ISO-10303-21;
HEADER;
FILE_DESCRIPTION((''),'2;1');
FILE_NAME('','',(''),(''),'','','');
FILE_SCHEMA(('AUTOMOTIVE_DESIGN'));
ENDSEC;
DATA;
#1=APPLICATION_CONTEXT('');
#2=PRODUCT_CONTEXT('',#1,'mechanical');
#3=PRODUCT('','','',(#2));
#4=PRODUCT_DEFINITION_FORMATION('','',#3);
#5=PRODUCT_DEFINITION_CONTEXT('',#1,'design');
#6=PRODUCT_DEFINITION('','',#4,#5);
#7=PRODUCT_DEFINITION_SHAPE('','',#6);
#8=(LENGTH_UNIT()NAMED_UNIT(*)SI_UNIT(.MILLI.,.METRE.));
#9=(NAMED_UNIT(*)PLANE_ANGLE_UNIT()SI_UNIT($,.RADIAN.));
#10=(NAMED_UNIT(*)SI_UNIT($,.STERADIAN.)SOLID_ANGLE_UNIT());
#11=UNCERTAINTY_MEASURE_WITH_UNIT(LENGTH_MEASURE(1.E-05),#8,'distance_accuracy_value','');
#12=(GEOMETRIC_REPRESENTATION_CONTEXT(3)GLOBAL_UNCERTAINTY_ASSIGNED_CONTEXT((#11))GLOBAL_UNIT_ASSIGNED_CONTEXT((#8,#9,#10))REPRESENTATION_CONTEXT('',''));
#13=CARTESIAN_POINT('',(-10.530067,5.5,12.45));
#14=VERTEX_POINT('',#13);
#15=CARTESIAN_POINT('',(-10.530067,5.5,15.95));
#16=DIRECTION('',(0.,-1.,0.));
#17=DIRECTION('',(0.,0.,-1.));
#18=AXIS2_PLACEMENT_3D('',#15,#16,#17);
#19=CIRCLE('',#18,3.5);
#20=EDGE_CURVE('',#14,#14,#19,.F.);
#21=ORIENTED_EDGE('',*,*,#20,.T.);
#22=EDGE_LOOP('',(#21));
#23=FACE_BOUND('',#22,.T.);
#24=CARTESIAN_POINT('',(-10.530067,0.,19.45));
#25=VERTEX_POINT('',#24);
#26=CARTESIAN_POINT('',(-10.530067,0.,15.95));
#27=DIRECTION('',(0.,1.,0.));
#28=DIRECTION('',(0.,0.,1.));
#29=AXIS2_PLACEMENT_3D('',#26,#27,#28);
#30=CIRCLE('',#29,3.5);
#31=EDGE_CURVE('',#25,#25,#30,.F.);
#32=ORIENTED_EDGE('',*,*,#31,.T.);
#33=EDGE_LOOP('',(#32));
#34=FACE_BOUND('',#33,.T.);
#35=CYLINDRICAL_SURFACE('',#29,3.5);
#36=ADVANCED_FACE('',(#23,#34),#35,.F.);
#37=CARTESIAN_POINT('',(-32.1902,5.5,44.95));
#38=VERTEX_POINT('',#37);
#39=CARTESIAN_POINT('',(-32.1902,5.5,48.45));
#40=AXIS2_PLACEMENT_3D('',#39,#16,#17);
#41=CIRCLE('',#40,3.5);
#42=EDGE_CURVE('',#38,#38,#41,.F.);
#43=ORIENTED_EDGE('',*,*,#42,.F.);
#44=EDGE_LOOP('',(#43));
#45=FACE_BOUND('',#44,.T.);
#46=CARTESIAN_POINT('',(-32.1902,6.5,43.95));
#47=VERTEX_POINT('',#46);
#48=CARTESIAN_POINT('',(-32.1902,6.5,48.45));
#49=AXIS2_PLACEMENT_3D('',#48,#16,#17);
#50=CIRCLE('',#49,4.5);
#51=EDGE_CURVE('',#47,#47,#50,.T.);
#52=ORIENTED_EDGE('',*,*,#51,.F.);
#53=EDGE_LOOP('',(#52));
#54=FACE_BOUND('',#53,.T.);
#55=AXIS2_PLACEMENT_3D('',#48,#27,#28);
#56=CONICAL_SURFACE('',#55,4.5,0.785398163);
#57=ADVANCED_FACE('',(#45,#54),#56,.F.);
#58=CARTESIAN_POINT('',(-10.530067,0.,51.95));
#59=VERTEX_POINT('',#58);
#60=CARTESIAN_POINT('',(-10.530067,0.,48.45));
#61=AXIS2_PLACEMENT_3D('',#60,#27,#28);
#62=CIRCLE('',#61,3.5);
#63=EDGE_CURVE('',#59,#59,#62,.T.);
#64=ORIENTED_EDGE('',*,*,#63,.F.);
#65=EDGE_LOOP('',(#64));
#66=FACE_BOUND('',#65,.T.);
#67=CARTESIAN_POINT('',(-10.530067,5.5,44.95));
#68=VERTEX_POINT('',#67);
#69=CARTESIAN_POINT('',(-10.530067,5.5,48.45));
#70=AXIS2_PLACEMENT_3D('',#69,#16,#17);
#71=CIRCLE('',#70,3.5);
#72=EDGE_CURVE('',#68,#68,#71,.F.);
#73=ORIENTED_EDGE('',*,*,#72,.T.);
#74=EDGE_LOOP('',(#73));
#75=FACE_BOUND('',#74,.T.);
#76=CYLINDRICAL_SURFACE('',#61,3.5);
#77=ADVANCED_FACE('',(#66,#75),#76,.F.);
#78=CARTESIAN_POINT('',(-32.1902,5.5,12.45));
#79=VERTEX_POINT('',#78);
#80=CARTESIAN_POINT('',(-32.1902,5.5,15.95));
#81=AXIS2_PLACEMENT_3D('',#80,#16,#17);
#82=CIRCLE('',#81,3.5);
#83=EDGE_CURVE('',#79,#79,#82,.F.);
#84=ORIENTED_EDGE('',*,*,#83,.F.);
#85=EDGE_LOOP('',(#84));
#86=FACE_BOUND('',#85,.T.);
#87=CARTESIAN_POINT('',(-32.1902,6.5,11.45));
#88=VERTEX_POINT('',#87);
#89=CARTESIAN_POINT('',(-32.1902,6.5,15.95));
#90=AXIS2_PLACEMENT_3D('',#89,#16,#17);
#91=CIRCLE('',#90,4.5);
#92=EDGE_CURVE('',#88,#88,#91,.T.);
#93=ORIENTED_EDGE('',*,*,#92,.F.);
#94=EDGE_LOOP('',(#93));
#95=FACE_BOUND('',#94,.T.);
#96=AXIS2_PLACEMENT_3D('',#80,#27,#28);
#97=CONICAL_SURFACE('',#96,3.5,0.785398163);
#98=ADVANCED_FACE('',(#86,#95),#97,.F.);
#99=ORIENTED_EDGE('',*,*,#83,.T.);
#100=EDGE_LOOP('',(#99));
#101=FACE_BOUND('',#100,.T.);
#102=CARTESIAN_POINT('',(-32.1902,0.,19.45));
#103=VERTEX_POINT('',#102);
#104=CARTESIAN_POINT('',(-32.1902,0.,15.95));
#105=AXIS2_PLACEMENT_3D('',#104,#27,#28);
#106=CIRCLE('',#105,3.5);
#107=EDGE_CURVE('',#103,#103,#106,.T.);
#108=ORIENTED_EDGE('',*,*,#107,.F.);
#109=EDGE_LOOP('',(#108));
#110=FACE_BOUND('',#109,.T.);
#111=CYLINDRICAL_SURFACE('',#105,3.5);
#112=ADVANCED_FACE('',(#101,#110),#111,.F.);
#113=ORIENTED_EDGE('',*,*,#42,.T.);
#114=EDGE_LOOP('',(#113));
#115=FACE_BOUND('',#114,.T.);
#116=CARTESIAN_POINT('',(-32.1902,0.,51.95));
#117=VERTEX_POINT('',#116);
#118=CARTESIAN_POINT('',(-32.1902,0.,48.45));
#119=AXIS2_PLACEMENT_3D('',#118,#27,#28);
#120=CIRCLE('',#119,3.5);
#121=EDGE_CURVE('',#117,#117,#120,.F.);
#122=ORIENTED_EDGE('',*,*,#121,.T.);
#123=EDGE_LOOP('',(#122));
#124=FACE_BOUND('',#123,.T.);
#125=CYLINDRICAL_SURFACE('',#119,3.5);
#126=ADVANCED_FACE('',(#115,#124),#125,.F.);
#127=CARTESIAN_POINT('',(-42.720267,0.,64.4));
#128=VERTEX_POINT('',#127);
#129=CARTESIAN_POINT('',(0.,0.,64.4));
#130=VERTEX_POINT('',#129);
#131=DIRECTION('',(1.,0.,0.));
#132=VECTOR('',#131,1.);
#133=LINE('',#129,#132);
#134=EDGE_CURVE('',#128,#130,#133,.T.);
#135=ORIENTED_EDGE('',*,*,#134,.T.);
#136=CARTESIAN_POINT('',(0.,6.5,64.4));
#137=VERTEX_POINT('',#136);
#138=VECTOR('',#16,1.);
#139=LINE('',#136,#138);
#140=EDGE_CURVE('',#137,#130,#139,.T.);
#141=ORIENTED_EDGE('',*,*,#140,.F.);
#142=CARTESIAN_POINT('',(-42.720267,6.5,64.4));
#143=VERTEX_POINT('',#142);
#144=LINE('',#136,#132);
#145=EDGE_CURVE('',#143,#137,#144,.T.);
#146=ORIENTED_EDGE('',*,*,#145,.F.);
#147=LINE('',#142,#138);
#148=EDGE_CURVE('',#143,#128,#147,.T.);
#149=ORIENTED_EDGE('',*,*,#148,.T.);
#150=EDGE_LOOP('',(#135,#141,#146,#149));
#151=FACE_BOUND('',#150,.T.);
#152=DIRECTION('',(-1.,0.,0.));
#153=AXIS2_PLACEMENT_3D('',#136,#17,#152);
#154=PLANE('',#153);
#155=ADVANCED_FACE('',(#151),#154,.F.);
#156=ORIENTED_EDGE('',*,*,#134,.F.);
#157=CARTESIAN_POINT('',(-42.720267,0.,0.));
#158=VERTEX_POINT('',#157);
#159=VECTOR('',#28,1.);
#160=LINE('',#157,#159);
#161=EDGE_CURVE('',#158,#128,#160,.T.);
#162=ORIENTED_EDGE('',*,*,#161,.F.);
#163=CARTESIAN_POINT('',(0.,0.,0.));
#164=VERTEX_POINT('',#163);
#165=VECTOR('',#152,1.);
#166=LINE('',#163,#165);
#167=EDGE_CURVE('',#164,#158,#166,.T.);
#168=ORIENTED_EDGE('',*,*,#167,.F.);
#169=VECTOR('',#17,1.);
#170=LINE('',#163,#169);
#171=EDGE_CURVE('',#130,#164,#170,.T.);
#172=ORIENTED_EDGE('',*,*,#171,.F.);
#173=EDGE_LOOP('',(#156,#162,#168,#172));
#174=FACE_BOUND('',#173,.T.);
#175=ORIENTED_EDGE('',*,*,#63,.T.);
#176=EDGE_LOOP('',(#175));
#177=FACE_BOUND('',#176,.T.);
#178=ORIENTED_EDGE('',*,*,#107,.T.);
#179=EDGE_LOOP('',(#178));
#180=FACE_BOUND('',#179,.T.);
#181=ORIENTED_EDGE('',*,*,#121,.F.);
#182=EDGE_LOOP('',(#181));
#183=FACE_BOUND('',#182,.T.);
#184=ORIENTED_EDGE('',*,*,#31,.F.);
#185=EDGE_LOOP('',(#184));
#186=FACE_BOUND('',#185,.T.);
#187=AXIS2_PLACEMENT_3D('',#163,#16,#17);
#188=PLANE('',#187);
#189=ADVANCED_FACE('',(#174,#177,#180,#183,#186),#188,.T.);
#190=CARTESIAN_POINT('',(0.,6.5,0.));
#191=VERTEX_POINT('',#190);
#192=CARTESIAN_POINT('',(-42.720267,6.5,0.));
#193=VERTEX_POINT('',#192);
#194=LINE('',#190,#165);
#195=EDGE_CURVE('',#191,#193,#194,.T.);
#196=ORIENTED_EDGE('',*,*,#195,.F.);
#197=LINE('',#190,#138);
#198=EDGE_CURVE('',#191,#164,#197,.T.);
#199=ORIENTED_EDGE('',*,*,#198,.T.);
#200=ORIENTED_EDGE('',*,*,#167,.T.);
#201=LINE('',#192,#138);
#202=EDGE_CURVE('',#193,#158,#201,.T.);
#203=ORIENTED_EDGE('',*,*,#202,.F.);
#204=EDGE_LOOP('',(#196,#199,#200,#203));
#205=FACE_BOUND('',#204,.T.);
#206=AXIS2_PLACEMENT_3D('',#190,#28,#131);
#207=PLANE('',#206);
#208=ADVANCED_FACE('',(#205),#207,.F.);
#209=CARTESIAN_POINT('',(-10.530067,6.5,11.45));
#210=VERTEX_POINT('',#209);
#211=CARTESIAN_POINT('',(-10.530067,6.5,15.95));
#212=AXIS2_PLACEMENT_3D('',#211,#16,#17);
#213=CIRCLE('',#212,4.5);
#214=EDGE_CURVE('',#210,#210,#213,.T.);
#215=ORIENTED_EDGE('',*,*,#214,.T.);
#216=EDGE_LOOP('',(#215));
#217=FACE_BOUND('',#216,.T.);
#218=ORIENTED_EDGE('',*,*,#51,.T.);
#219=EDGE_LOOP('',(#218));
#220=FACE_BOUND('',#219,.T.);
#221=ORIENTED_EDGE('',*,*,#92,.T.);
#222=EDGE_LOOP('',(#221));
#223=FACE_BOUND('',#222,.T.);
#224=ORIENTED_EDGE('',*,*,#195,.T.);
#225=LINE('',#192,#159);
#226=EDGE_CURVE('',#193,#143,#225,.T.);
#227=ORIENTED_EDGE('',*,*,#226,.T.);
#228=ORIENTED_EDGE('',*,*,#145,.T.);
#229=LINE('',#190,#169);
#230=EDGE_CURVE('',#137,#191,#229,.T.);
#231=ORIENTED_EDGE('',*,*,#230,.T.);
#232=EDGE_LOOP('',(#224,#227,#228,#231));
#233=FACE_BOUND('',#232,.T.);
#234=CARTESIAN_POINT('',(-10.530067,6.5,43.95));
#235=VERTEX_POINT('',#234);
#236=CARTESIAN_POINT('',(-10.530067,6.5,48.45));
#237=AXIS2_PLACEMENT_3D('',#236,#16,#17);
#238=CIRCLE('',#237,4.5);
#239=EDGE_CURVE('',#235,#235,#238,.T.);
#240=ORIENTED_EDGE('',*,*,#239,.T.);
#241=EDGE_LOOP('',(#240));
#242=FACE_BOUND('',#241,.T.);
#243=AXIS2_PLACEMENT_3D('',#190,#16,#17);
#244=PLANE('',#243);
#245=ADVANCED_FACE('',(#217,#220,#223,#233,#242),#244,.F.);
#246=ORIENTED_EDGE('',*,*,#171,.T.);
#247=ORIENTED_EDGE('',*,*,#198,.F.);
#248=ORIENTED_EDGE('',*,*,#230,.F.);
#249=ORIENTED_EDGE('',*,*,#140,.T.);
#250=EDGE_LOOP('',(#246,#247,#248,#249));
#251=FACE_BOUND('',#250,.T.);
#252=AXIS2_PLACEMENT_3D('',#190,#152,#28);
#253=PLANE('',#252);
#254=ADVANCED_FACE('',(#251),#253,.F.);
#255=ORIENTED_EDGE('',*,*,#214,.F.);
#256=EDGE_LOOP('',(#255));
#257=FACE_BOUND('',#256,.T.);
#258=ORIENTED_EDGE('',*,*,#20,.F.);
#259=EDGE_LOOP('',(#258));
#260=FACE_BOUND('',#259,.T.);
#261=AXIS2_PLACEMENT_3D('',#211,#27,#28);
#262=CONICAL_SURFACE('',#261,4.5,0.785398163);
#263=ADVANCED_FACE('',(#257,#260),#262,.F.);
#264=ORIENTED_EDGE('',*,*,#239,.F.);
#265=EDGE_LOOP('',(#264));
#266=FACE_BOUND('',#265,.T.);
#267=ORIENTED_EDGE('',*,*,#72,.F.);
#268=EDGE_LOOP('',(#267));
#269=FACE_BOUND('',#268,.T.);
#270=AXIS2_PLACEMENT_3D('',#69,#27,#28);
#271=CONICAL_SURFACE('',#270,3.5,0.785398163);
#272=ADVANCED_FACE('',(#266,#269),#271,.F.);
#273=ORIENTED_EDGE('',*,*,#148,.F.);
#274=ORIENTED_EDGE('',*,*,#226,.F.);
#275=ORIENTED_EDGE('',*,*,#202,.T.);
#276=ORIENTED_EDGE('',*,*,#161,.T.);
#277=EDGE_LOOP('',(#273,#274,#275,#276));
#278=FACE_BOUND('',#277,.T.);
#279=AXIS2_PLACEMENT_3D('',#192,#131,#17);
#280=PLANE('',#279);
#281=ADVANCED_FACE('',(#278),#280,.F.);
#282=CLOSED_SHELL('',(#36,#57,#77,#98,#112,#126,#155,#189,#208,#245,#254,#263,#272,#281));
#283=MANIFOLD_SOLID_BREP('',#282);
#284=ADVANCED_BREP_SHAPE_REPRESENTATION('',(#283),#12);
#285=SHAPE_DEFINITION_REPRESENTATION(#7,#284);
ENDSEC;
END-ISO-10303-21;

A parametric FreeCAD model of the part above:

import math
import FreeCAD as App
import Part
import Sketcher
from FreeCAD import Vector


def edges_at(feature, points):
    """Names of the edges that pass closest to the given points."""
    edges = feature.Shape.Edges
    near = lambda p: min(range(len(edges)), key=lambda i: edges[i].distToShape(Part.Vertex(*p))[0])
    return sorted({f"Edge{near(p) + 1}" for p in points})


def add_polygon(sketch, points):
    """Adds a closed chain of lines whose ends are joined by coincident constraints."""
    first, n = sketch.GeometryCount, len(points)
    for a, b in zip(points, points[1:] + points[:1]):
        sketch.addGeometry(Part.LineSegment(App.Vector(*a, 0), App.Vector(*b, 0)), False)
    for i in range(n):
        sketch.addConstraint(Sketcher.Constraint("Coincident", first + i, 2, first + (i + 1) % n, 1))

doc = App.newDocument("Part")
body = doc.addObject("PartDesign::Body", "Body")

sketch1 = body.newObject("Sketcher::SketchObject", "Sketch")
sketch1.AttachmentSupport = (doc.getObject("XZ_Plane"), [""])
sketch1.MapMode = "FlatFace"
add_polygon(sketch1, [(-43, 0), (-43, 64), (0, 64), (0, 0)])
sketch1.addConstraint([
    Sketcher.Constraint("Vertical", 0),
    Sketcher.Constraint("Horizontal", 1),
    Sketcher.Constraint("Vertical", 2),
    Sketcher.Constraint("Horizontal", 3),
    Sketcher.Constraint("Coincident", 2, 2, -1, 1),
    Sketcher.Constraint("DistanceY", 0, 1, 0, 2, 64.4),
    Sketcher.Constraint("DistanceX", 1, 1, 1, 2, 42.720267),
])
pad1 = body.newObject("PartDesign::Pad", "Pad")
pad1.Profile = sketch1
pad1.Length = 6.5
pad1.Reversed = True

sketch2 = body.newObject("Sketcher::SketchObject", "Sketch001")
sketch2.AttachmentSupport = (doc.getObject("XZ_Plane"), [""])
sketch2.MapMode = "FlatFace"
sketch2.AttachmentOffset = App.Placement(Vector(0, 0, -6.5), App.Rotation())
sketch2.addGeometry([
    Part.Circle(Vector(-32.2, 15.9, 0), Vector(0, 0, 1), 3.5),
    Part.ArcOfCircle(Part.Circle(Vector(-10.5, 16, 0), Vector(0, 0, 1), 3.5), math.radians(-180), math.radians(-90)),
    Part.ArcOfCircle(Part.Circle(Vector(-10.5, 15.9, 0), Vector(0, 0, 1), 3.5), math.radians(90), math.radians(180)),
    Part.ArcOfCircle(Part.Circle(Vector(-10.5, 15.9, 0), Vector(0, 0, 1), 3.5), math.radians(0), math.radians(90)),
    Part.ArcOfCircle(Part.Circle(Vector(-10.5, 16, 0), Vector(0, 0, 1), 3.5), math.radians(-90), math.radians(0)),
    Part.Circle(Vector(-32.2, 48.5, 0), Vector(0, 0, 1), 3.5),
    Part.ArcOfCircle(Part.Circle(Vector(-10.5, 48.5, 0), Vector(0, 0, 1), 3.5), math.radians(-90), math.radians(0)),
    Part.ArcOfCircle(Part.Circle(Vector(-10.5, 48.5, 0), Vector(0, 0, 1), 3.5), math.radians(90), math.radians(270)),
    Part.ArcOfCircle(Part.Circle(Vector(-10.5, 48.4, 0), Vector(0, 0, 1), 3.5), math.radians(0), math.radians(90)),
], False)
sketch2.addConstraint([
    Sketcher.Constraint("Tangent", 1, 1, 2, 2),
    Sketcher.Constraint("Tangent", 2, 1, 3, 2),
    Sketcher.Constraint("Tangent", 3, 1, 4, 2),
    Sketcher.Constraint("Tangent", 4, 1, 1, 2),
    Sketcher.Constraint("Tangent", 6, 1, 7, 2),
    Sketcher.Constraint("Tangent", 7, 1, 8, 2),
    Sketcher.Constraint("Tangent", 8, 1, 6, 2),
    Sketcher.Constraint("Equal", 0, 1),
    Sketcher.Constraint("Equal", 1, 2),
    Sketcher.Constraint("Equal", 4, 5),
    Sketcher.Constraint("Equal", 5, 6),
    Sketcher.Constraint("Horizontal", 0, 3, 1, 3),
    Sketcher.Constraint("Horizontal", 5, 3, 6, 3),
    Sketcher.Constraint("Horizontal", 4, 3, 1, 1),
    Sketcher.Constraint("Horizontal", 1, 1, 3, 1),
    Sketcher.Constraint("Horizontal", 7, 3, 8, 1),
    Sketcher.Constraint("Vertical", 0, 3, 5, 3),
    Sketcher.Constraint("Vertical", 4, 3, 6, 3),
    Sketcher.Constraint("Vertical", 8, 3, 2, 1),
    Sketcher.Constraint("Vertical", 2, 1, 4, 1),
    Sketcher.Constraint("Vertical", 4, 1, 6, 1),
    Sketcher.Constraint("Vertical", 6, 1, 7, 1),
    Sketcher.Constraint("Diameter", 0, 7.0),
    Sketcher.Constraint("DistanceY", 0, 3, 5, 3, 32.5),
    Sketcher.Constraint("DistanceY", -1, 1, 0, 3, 15.95),
    Sketcher.Constraint("DistanceX", 0, 3, -1, 1, 32.1902),
    Sketcher.Constraint("DistanceX", 1, 3, -1, 1, 10.530067),
])
pocket1 = body.newObject("PartDesign::Pocket", "Pocket")
pocket1.Profile = sketch2
pocket1.Type = "ThroughAll"
pocket1.Reversed = True
doc.recompute()

chamfer = body.newObject("PartDesign::Chamfer", "Chamfer")
chamfer.Base = (pocket1, edges_at(pocket1, [
    (-8.055, 6.5, 45.975),
    (-35.69, 6.5, 48.45),
    (-35.69, 6.5, 15.95),
    (-13.005, 6.5, 13.475),
]))
chamfer.Size = 1

doc.recompute()
